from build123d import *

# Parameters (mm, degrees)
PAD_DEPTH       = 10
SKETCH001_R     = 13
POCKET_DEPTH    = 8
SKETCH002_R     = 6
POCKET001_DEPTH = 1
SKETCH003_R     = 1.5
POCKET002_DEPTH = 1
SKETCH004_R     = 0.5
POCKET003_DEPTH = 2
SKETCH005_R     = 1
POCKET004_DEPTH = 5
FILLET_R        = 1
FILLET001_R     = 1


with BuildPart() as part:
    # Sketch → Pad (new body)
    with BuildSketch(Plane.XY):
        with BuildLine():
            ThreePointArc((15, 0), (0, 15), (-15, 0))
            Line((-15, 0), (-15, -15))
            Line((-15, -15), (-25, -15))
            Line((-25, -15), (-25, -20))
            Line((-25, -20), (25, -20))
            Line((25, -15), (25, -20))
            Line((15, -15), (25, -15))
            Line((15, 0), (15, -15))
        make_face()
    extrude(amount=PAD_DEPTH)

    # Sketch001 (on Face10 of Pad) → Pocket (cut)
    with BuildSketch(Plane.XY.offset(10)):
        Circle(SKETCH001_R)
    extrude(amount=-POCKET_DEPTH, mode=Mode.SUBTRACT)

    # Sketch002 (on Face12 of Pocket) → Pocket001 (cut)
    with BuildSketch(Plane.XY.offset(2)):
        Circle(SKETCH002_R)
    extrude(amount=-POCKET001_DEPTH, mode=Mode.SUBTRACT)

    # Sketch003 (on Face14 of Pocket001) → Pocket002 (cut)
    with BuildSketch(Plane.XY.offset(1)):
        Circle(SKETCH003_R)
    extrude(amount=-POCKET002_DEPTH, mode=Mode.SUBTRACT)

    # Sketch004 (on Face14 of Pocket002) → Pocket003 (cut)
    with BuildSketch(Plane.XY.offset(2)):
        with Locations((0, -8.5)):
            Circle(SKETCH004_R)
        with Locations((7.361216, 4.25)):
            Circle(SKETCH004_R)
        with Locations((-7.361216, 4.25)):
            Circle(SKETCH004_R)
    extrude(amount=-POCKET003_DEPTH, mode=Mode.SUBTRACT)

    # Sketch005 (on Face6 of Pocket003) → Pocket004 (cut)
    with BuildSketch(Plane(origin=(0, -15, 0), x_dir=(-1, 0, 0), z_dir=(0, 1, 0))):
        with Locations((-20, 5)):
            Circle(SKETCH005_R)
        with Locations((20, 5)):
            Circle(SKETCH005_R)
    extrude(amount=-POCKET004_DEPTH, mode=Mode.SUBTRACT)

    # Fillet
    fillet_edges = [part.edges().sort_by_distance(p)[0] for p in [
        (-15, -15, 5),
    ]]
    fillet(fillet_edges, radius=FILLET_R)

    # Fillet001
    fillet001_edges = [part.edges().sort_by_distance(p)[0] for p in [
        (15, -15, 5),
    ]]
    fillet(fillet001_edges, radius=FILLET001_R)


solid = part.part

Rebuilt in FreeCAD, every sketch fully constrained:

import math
import FreeCAD as App
import Part
import Sketcher
from FreeCAD import Vector


def edges_at(feature, points):
    """Names of the edges that pass closest to the given points."""
    edges = feature.Shape.Edges
    near = lambda p: min(range(len(edges)), key=lambda i: edges[i].distToShape(Part.Vertex(*p))[0])
    return sorted({f"Edge{near(p) + 1}" for p in points})

doc = App.newDocument("Part")
body = doc.addObject("PartDesign::Body", "Body")

# Sketch on XY plane
sketch1 = body.newObject("Sketcher::SketchObject", "Sketch")
sketch1.AttachmentSupport = (doc.getObject("XY_Plane"), [""])
sketch1.MapMode = "FlatFace"
sketch1.addGeometry(Part.ArcOfCircle(Part.Circle(Vector(0, 0, 0), Vector(0, 0, 1), 15), math.radians(0), math.radians(180)), False)
sketch1.addGeometry(Part.LineSegment(Vector(-15, 0, 0), Vector(-15, -15, 0)), False)
sketch1.addGeometry(Part.LineSegment(Vector(-15, -15, 0), Vector(-25, -15, 0)), False)
sketch1.addGeometry(Part.LineSegment(Vector(-25, -15, 0), Vector(-25, -20, 0)), False)
sketch1.addGeometry(Part.LineSegment(Vector(-25, -20, 0), Vector(25, -20, 0)), False)
sketch1.addGeometry(Part.LineSegment(Vector(25, -20, 0), Vector(25, -15, 0)), False)
sketch1.addGeometry(Part.LineSegment(Vector(25, -15, 0), Vector(15, -15, 0)), False)
sketch1.addGeometry(Part.LineSegment(Vector(15, -15, 0), Vector(15, 0, 0)), False)
sketch1.addConstraint(Sketcher.Constraint("Tangent", 0, 2, 1, 1))
sketch1.addConstraint(Sketcher.Constraint("Coincident", 1, 2, 2, 1))
sketch1.addConstraint(Sketcher.Constraint("Coincident", 2, 2, 3, 1))
sketch1.addConstraint(Sketcher.Constraint("Coincident", 3, 2, 4, 1))
sketch1.addConstraint(Sketcher.Constraint("Coincident", 4, 2, 5, 1))
sketch1.addConstraint(Sketcher.Constraint("Coincident", 5, 2, 6, 1))
sketch1.addConstraint(Sketcher.Constraint("Coincident", 6, 2, 7, 1))
sketch1.addConstraint(Sketcher.Constraint("Tangent", 7, 2, 0, 1))
sketch1.addConstraint(Sketcher.Constraint("Vertical", 1))
sketch1.addConstraint(Sketcher.Constraint("Horizontal", 2))
sketch1.addConstraint(Sketcher.Constraint("Vertical", 3))
sketch1.addConstraint(Sketcher.Constraint("Horizontal", 4))
sketch1.addConstraint(Sketcher.Constraint("Vertical", 5))
sketch1.addConstraint(Sketcher.Constraint("Horizontal", 6))
sketch1.addConstraint(Sketcher.Constraint("Vertical", 7))
sketch1.addConstraint(Sketcher.Constraint("Coincident", 0, 3, -1, 1))
sketch1.addConstraint(Sketcher.Constraint("Symmetric", 2, 2, 5, 2, -2))
sketch1.addConstraint(Sketcher.Constraint("Radius", 0, 15.0))
sketch1.addConstraint(Sketcher.Constraint("DistanceX", 2, 2, 2, 1, 10.0))
sketch1.addConstraint(Sketcher.Constraint("DistanceY", 1, 2, 1, 1, 15.0))
sketch1.addConstraint(Sketcher.Constraint("DistanceY", 3, 2, 3, 1, 5.0))
pad1 = body.newObject("PartDesign::Pad", "Pad")
pad1.Profile = sketch1
pad1.Length = 10

# Sketch on XY plane
sketch2 = body.newObject("Sketcher::SketchObject", "Sketch001")
sketch2.AttachmentSupport = (doc.getObject("XY_Plane"), [""])
sketch2.MapMode = "FlatFace"
sketch2.AttachmentOffset = App.Placement(Vector(0, 0, 10), App.Rotation())
sketch2.addGeometry(Part.Circle(Vector(0, 0, 0), Vector(0, 0, 1), 13), False)
sketch2.addConstraint(Sketcher.Constraint("Coincident", 0, 3, -1, 1))
sketch2.addConstraint(Sketcher.Constraint("Diameter", 0, 26.0))
pocket1 = body.newObject("PartDesign::Pocket", "Pocket")
pocket1.Profile = sketch2
pocket1.Length = 8

# Sketch on XY plane
sketch3 = body.newObject("Sketcher::SketchObject", "Sketch002")
sketch3.AttachmentSupport = (doc.getObject("XY_Plane"), [""])
sketch3.MapMode = "FlatFace"
sketch3.AttachmentOffset = App.Placement(Vector(0, 0, 2), App.Rotation())
sketch3.addGeometry(Part.Circle(Vector(0, 0, 0), Vector(0, 0, 1), 6), False)
sketch3.addConstraint(Sketcher.Constraint("Coincident", 0, 3, -1, 1))
sketch3.addConstraint(Sketcher.Constraint("Diameter", 0, 12.0))
pocket2 = body.newObject("PartDesign::Pocket", "Pocket001")
pocket2.Profile = sketch3
pocket2.Length = 1

# Sketch on XY plane
sketch4 = body.newObject("Sketcher::SketchObject", "Sketch003")
sketch4.AttachmentSupport = (doc.getObject("XY_Plane"), [""])
sketch4.MapMode = "FlatFace"
sketch4.AttachmentOffset = App.Placement(Vector(0, 0, 1), App.Rotation())
sketch4.addGeometry(Part.Circle(Vector(0, 0, 0), Vector(0, 0, 1), 1.5), False)
sketch4.addConstraint(Sketcher.Constraint("Coincident", 0, 3, -1, 1))
sketch4.addConstraint(Sketcher.Constraint("Diameter", 0, 3.0))
pocket3 = body.newObject("PartDesign::Pocket", "Pocket002")
pocket3.Profile = sketch4
pocket3.Length = 1

# Sketch on XY plane
sketch5 = body.newObject("Sketcher::SketchObject", "Sketch004")
sketch5.AttachmentSupport = (doc.getObject("XY_Plane"), [""])
sketch5.MapMode = "FlatFace"
sketch5.AttachmentOffset = App.Placement(Vector(0, 0, 2), App.Rotation())
sketch5.addGeometry(Part.Circle(Vector(0, -8.5, 0), Vector(0, 0, 1), 0.5), False)
sketch5.addGeometry(Part.Circle(Vector(7.361216, 4.25, 0), Vector(0, 0, 1), 0.5), False)
sketch5.addGeometry(Part.Circle(Vector(-7.361216, 4.25, 0), Vector(0, 0, 1), 0.5), False)
sketch5.addConstraint(Sketcher.Constraint("Equal", 0, 1))
sketch5.addConstraint(Sketcher.Constraint("Equal", 1, 2))
sketch5.addConstraint(Sketcher.Constraint("Symmetric", 1, 3, 2, 3, -2))
sketch5.addConstraint(Sketcher.Constraint("PointOnObject", 0, 3, -2))
sketch5.addConstraint(Sketcher.Constraint("Diameter", 0, 1.0))
sketch5.addConstraint(Sketcher.Constraint("DistanceY", 0, 3, -1, 1, 8.5))
sketch5.addConstraint(Sketcher.Constraint("DistanceY", -1, 1, 1, 3, 4.25))
sketch5.addConstraint(Sketcher.Constraint("DistanceX", -1, 1, 1, 3, 7.361216))
pocket4 = body.newObject("PartDesign::Pocket", "Pocket003")
pocket4.Profile = sketch5
pocket4.Length = 2

# Sketch on XZ plane
sketch6 = body.newObject("Sketcher::SketchObject", "Sketch005")
sketch6.AttachmentSupport = (doc.getObject("XZ_Plane"), [""])
sketch6.MapMode = "FlatFace"
sketch6.AttachmentOffset = App.Placement(Vector(0, 0, 15), App.Rotation())
sketch6.addGeometry(Part.Circle(Vector(20, 5, 0), Vector(0, 0, 1), 1), False)
sketch6.addGeometry(Part.Circle(Vector(-20, 5, 0), Vector(0, 0, 1), 1), False)
sketch6.addConstraint(Sketcher.Constraint("Equal", 0, 1))
sketch6.addConstraint(Sketcher.Constraint("Symmetric", 0, 3, 1, 3, -2))
sketch6.addConstraint(Sketcher.Constraint("Diameter", 0, 2.0))
sketch6.addConstraint(Sketcher.Constraint("DistanceX", -1, 1, 0, 3, 20.0))
sketch6.addConstraint(Sketcher.Constraint("DistanceY", -1, 1, 0, 3, 5.0))
pocket5 = body.newObject("PartDesign::Pocket", "Pocket004")
pocket5.Profile = sketch6
pocket5.Length = 5
pocket5.Reversed = True
doc.recompute()

fillet = body.newObject("PartDesign::Fillet", "Fillet")
fillet.Base = (pocket5, edges_at(pocket5, [(-15, -15, 5)]))
fillet.Radius = 1
doc.recompute()

fillet2 = body.newObject("PartDesign::Fillet", "Fillet001")
fillet2.Base = (fillet, edges_at(fillet, [(15, -15, 5)]))
fillet2.Radius = 1

doc.recompute()
